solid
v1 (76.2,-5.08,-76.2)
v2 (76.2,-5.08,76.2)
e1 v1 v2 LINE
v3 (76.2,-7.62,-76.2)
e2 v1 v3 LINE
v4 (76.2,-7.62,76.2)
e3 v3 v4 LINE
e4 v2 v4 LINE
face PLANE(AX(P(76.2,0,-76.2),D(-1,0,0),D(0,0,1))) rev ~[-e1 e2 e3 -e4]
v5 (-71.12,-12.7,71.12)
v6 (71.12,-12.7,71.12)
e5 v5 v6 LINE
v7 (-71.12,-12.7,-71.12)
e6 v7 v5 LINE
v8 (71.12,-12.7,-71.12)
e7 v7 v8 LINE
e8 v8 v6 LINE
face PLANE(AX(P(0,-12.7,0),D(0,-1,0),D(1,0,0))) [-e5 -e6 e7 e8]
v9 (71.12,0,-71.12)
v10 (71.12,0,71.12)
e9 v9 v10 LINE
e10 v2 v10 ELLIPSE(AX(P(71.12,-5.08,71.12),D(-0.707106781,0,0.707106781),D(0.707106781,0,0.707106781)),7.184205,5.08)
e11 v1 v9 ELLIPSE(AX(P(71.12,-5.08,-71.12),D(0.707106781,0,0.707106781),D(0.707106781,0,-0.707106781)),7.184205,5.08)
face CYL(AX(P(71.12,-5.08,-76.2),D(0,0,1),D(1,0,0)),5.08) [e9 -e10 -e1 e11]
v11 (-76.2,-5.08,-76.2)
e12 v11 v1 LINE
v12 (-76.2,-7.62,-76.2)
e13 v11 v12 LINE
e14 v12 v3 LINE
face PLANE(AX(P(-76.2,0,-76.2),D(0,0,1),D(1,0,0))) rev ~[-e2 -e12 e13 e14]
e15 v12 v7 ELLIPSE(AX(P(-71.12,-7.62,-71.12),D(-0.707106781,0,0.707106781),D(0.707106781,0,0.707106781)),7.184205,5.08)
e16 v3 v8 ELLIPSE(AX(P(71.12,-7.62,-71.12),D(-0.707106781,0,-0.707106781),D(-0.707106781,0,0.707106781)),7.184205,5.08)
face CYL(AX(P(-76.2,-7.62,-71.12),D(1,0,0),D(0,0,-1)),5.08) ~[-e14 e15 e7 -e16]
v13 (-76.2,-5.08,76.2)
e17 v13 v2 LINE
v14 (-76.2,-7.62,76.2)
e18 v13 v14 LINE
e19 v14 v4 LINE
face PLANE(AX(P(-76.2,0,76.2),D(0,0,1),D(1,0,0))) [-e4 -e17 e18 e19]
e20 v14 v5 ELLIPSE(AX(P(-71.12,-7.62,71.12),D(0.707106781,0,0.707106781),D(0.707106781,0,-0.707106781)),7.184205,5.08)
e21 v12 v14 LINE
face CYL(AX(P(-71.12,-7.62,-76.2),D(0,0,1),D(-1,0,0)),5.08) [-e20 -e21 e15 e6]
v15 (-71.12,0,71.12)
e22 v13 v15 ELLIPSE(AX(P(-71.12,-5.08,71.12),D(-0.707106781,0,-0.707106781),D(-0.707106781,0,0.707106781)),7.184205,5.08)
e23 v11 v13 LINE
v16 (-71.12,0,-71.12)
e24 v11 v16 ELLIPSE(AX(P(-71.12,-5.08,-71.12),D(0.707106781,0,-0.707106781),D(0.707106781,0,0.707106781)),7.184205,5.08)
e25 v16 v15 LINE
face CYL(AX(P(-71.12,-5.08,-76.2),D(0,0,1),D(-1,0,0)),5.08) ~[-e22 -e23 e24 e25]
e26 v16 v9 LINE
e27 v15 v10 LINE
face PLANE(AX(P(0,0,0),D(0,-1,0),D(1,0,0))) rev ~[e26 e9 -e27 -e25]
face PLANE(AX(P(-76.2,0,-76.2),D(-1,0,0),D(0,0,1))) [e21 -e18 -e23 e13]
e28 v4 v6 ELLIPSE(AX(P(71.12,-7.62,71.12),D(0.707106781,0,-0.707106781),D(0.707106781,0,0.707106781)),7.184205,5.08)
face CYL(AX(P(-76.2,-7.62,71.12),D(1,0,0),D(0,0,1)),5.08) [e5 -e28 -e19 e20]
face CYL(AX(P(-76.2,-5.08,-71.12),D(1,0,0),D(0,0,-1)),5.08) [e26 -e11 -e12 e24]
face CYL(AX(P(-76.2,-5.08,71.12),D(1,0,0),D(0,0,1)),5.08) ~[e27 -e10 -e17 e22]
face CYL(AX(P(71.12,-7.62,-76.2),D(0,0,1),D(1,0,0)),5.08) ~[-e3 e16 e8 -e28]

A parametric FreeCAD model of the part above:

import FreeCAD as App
import Part
import Sketcher

V = App.Vector
Q = App.Units.Quantity


def edges_at(feature, points):
    """Names of the edges that pass closest to the given points."""
    edges = feature.Shape.Edges
    near = lambda p: min(range(len(edges)), key=lambda i: edges[i].distToShape(Part.Vertex(*p))[0])
    return sorted({f"Edge{near(p) + 1}" for p in points})


def add_polygon(sketch, points):
    """Adds a closed chain of lines whose ends are joined by coincident constraints."""
    first, n = sketch.GeometryCount, len(points)
    for a, b in zip(points, points[1:] + points[:1]):
        sketch.addGeometry(Part.LineSegment(App.Vector(*a, 0), App.Vector(*b, 0)), False)
    for i in range(n):
        sketch.addConstraint(Sketcher.Constraint("Coincident", first + i, 2, first + (i + 1) % n, 1))

doc = App.newDocument("Part")
body = doc.addObject("PartDesign::Body", "Body")

# Sketch on XZ plane
sketch1 = doc.addObject("Sketcher::SketchObject", "Sketch")
body.addObject(sketch1)
sketch1.AttachmentSupport = (doc.XZ_Plane, [""])
sketch1.MapMode = "FlatFace"
add_polygon(sketch1, [(-76, 76), (-76, -76), (76, -76), (76, 76)])  # lines 0-3
sketch1.addConstraint(Sketcher.Constraint("Vertical", 0))
sketch1.addConstraint(Sketcher.Constraint("Horizontal", 1))
sketch1.addConstraint(Sketcher.Constraint("Vertical", 2))
sketch1.addConstraint(Sketcher.Constraint("Horizontal", 3))
sketch1.addConstraint(Sketcher.Constraint("Symmetric", 0, 2, 2, 2, -1, 1))
sketch1.addConstraint(Sketcher.Constraint("Equal", 3, 0))
sketch1.addConstraint(Sketcher.Constraint("DistanceX", 1, 1, 1, 2, Q("6 in")))
pad1 = doc.addObject("PartDesign::Pad", "Pad")
body.addObject(pad1)
pad1.Profile = sketch1
pad1.Length = Q("0.5 in")
doc.recompute()

fillet = doc.addObject("PartDesign::Fillet", "Fillet")
body.addObject(fillet)
fillet.Base = (pad1, edges_at(pad1, [
    (76.2, -12.7, 0),
    (0, -12.7, 76.2),
    (-76.2, 0, 0),
    (0, -12.7, -76.2),
    (-76.2, -12.7, 0),
    (0, 0, -76.2),
    (76.2, 0, 0),
    (0, 0, 76.2),
]))
fillet.Radius = Q("0.2 in")

doc.recompute()
